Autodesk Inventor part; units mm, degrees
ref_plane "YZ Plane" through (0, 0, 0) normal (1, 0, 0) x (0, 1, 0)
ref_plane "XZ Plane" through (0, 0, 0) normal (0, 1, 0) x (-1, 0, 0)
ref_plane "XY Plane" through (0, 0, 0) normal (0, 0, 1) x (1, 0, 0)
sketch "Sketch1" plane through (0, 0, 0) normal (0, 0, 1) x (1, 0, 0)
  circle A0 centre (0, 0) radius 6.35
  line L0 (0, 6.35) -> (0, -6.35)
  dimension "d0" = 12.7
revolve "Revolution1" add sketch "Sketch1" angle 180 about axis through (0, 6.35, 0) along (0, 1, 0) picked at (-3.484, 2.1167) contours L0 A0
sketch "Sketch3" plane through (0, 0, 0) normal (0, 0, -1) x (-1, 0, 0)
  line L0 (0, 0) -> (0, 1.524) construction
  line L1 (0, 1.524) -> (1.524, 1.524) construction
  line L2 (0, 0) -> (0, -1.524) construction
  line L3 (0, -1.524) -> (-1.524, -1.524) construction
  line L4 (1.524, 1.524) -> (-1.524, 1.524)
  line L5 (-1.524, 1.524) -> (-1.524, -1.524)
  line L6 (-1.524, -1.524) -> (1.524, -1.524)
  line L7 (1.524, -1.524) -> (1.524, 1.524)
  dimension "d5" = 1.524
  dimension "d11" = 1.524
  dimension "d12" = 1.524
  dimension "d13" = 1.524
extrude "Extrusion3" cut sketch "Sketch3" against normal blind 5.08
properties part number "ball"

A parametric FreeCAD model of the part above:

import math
import FreeCAD as App
import Part
import Sketcher
Q = App.Units.Quantity


def add_polygon(sketch, points):
    """Adds a closed chain of lines whose ends are joined by coincident constraints."""
    first, n = sketch.GeometryCount, len(points)
    for a, b in zip(points, points[1:] + points[:1]):
        sketch.addGeometry(Part.LineSegment(App.Vector(*a, 0), App.Vector(*b, 0)), False)
    for i in range(n):
        sketch.addConstraint(Sketcher.Constraint("Coincident", first + i, 2, first + (i + 1) % n, 1))

doc = App.newDocument("Part")
body = doc.addObject("PartDesign::Body", "Body")

# Sketch on XY plane
sketch1 = body.newObject("Sketcher::SketchObject", "Sketch")
sketch1.AttachmentSupport = (doc.getObject("XY_Plane"), [""])
sketch1.MapMode = "FlatFace"
sketch1.addGeometry([
    Part.LineSegment(App.Vector(0, -6, 0), App.Vector(0, 6, 0)),
    Part.ArcOfCircle(Part.Circle(App.Vector(0, 0, 0), App.Vector(0, 0, 1), 6), math.radians(90), math.radians(270)),
], False)
sketch1.addConstraint([
    Sketcher.Constraint("Coincident", 0, 1, 1, 2),
    Sketcher.Constraint("Coincident", 1, 1, 0, 2),
    Sketcher.Constraint("Vertical", 0),
    Sketcher.Constraint("Coincident", 1, 3, -1, 1),
    Sketcher.Constraint("PointOnObject", 0, 1, -2),
    Sketcher.Constraint("Radius", 1, Q("0.25 in")),
])
revolution = body.newObject("PartDesign::Revolution", "Revolution")
revolution.Profile = sketch1
revolution.ReferenceAxis = (sketch1, ["V_Axis"])
revolution.Angle = 180

# Sketch on XY plane
sketch2 = body.newObject("Sketcher::SketchObject", "Sketch001")
sketch2.AttachmentSupport = (doc.getObject("XY_Plane"), [""])
sketch2.MapMode = "FlatFace"
add_polygon(sketch2, [(-1.5, -1.5), (-1.5, 1.5), (1.5, 1.5), (1.5, -1.5)])  # lines 0-3
sketch2.addConstraint([
    Sketcher.Constraint("Vertical", 0),
    Sketcher.Constraint("Horizontal", 1),
    Sketcher.Constraint("Vertical", 2),
    Sketcher.Constraint("Horizontal", 3),
    Sketcher.Constraint("Symmetric", 0, 2, 2, 2, -1, 1),
    Sketcher.Constraint("Equal", 3, 0),
    Sketcher.Constraint("DistanceX", 0, 2, -1, 1, Q("0.06 in")),
])
pocket1 = body.newObject("PartDesign::Pocket", "Pocket")
pocket1.Profile = sketch2
pocket1.Length = Q("0.2 in")
pocket1.Reversed = True

doc.recompute()
